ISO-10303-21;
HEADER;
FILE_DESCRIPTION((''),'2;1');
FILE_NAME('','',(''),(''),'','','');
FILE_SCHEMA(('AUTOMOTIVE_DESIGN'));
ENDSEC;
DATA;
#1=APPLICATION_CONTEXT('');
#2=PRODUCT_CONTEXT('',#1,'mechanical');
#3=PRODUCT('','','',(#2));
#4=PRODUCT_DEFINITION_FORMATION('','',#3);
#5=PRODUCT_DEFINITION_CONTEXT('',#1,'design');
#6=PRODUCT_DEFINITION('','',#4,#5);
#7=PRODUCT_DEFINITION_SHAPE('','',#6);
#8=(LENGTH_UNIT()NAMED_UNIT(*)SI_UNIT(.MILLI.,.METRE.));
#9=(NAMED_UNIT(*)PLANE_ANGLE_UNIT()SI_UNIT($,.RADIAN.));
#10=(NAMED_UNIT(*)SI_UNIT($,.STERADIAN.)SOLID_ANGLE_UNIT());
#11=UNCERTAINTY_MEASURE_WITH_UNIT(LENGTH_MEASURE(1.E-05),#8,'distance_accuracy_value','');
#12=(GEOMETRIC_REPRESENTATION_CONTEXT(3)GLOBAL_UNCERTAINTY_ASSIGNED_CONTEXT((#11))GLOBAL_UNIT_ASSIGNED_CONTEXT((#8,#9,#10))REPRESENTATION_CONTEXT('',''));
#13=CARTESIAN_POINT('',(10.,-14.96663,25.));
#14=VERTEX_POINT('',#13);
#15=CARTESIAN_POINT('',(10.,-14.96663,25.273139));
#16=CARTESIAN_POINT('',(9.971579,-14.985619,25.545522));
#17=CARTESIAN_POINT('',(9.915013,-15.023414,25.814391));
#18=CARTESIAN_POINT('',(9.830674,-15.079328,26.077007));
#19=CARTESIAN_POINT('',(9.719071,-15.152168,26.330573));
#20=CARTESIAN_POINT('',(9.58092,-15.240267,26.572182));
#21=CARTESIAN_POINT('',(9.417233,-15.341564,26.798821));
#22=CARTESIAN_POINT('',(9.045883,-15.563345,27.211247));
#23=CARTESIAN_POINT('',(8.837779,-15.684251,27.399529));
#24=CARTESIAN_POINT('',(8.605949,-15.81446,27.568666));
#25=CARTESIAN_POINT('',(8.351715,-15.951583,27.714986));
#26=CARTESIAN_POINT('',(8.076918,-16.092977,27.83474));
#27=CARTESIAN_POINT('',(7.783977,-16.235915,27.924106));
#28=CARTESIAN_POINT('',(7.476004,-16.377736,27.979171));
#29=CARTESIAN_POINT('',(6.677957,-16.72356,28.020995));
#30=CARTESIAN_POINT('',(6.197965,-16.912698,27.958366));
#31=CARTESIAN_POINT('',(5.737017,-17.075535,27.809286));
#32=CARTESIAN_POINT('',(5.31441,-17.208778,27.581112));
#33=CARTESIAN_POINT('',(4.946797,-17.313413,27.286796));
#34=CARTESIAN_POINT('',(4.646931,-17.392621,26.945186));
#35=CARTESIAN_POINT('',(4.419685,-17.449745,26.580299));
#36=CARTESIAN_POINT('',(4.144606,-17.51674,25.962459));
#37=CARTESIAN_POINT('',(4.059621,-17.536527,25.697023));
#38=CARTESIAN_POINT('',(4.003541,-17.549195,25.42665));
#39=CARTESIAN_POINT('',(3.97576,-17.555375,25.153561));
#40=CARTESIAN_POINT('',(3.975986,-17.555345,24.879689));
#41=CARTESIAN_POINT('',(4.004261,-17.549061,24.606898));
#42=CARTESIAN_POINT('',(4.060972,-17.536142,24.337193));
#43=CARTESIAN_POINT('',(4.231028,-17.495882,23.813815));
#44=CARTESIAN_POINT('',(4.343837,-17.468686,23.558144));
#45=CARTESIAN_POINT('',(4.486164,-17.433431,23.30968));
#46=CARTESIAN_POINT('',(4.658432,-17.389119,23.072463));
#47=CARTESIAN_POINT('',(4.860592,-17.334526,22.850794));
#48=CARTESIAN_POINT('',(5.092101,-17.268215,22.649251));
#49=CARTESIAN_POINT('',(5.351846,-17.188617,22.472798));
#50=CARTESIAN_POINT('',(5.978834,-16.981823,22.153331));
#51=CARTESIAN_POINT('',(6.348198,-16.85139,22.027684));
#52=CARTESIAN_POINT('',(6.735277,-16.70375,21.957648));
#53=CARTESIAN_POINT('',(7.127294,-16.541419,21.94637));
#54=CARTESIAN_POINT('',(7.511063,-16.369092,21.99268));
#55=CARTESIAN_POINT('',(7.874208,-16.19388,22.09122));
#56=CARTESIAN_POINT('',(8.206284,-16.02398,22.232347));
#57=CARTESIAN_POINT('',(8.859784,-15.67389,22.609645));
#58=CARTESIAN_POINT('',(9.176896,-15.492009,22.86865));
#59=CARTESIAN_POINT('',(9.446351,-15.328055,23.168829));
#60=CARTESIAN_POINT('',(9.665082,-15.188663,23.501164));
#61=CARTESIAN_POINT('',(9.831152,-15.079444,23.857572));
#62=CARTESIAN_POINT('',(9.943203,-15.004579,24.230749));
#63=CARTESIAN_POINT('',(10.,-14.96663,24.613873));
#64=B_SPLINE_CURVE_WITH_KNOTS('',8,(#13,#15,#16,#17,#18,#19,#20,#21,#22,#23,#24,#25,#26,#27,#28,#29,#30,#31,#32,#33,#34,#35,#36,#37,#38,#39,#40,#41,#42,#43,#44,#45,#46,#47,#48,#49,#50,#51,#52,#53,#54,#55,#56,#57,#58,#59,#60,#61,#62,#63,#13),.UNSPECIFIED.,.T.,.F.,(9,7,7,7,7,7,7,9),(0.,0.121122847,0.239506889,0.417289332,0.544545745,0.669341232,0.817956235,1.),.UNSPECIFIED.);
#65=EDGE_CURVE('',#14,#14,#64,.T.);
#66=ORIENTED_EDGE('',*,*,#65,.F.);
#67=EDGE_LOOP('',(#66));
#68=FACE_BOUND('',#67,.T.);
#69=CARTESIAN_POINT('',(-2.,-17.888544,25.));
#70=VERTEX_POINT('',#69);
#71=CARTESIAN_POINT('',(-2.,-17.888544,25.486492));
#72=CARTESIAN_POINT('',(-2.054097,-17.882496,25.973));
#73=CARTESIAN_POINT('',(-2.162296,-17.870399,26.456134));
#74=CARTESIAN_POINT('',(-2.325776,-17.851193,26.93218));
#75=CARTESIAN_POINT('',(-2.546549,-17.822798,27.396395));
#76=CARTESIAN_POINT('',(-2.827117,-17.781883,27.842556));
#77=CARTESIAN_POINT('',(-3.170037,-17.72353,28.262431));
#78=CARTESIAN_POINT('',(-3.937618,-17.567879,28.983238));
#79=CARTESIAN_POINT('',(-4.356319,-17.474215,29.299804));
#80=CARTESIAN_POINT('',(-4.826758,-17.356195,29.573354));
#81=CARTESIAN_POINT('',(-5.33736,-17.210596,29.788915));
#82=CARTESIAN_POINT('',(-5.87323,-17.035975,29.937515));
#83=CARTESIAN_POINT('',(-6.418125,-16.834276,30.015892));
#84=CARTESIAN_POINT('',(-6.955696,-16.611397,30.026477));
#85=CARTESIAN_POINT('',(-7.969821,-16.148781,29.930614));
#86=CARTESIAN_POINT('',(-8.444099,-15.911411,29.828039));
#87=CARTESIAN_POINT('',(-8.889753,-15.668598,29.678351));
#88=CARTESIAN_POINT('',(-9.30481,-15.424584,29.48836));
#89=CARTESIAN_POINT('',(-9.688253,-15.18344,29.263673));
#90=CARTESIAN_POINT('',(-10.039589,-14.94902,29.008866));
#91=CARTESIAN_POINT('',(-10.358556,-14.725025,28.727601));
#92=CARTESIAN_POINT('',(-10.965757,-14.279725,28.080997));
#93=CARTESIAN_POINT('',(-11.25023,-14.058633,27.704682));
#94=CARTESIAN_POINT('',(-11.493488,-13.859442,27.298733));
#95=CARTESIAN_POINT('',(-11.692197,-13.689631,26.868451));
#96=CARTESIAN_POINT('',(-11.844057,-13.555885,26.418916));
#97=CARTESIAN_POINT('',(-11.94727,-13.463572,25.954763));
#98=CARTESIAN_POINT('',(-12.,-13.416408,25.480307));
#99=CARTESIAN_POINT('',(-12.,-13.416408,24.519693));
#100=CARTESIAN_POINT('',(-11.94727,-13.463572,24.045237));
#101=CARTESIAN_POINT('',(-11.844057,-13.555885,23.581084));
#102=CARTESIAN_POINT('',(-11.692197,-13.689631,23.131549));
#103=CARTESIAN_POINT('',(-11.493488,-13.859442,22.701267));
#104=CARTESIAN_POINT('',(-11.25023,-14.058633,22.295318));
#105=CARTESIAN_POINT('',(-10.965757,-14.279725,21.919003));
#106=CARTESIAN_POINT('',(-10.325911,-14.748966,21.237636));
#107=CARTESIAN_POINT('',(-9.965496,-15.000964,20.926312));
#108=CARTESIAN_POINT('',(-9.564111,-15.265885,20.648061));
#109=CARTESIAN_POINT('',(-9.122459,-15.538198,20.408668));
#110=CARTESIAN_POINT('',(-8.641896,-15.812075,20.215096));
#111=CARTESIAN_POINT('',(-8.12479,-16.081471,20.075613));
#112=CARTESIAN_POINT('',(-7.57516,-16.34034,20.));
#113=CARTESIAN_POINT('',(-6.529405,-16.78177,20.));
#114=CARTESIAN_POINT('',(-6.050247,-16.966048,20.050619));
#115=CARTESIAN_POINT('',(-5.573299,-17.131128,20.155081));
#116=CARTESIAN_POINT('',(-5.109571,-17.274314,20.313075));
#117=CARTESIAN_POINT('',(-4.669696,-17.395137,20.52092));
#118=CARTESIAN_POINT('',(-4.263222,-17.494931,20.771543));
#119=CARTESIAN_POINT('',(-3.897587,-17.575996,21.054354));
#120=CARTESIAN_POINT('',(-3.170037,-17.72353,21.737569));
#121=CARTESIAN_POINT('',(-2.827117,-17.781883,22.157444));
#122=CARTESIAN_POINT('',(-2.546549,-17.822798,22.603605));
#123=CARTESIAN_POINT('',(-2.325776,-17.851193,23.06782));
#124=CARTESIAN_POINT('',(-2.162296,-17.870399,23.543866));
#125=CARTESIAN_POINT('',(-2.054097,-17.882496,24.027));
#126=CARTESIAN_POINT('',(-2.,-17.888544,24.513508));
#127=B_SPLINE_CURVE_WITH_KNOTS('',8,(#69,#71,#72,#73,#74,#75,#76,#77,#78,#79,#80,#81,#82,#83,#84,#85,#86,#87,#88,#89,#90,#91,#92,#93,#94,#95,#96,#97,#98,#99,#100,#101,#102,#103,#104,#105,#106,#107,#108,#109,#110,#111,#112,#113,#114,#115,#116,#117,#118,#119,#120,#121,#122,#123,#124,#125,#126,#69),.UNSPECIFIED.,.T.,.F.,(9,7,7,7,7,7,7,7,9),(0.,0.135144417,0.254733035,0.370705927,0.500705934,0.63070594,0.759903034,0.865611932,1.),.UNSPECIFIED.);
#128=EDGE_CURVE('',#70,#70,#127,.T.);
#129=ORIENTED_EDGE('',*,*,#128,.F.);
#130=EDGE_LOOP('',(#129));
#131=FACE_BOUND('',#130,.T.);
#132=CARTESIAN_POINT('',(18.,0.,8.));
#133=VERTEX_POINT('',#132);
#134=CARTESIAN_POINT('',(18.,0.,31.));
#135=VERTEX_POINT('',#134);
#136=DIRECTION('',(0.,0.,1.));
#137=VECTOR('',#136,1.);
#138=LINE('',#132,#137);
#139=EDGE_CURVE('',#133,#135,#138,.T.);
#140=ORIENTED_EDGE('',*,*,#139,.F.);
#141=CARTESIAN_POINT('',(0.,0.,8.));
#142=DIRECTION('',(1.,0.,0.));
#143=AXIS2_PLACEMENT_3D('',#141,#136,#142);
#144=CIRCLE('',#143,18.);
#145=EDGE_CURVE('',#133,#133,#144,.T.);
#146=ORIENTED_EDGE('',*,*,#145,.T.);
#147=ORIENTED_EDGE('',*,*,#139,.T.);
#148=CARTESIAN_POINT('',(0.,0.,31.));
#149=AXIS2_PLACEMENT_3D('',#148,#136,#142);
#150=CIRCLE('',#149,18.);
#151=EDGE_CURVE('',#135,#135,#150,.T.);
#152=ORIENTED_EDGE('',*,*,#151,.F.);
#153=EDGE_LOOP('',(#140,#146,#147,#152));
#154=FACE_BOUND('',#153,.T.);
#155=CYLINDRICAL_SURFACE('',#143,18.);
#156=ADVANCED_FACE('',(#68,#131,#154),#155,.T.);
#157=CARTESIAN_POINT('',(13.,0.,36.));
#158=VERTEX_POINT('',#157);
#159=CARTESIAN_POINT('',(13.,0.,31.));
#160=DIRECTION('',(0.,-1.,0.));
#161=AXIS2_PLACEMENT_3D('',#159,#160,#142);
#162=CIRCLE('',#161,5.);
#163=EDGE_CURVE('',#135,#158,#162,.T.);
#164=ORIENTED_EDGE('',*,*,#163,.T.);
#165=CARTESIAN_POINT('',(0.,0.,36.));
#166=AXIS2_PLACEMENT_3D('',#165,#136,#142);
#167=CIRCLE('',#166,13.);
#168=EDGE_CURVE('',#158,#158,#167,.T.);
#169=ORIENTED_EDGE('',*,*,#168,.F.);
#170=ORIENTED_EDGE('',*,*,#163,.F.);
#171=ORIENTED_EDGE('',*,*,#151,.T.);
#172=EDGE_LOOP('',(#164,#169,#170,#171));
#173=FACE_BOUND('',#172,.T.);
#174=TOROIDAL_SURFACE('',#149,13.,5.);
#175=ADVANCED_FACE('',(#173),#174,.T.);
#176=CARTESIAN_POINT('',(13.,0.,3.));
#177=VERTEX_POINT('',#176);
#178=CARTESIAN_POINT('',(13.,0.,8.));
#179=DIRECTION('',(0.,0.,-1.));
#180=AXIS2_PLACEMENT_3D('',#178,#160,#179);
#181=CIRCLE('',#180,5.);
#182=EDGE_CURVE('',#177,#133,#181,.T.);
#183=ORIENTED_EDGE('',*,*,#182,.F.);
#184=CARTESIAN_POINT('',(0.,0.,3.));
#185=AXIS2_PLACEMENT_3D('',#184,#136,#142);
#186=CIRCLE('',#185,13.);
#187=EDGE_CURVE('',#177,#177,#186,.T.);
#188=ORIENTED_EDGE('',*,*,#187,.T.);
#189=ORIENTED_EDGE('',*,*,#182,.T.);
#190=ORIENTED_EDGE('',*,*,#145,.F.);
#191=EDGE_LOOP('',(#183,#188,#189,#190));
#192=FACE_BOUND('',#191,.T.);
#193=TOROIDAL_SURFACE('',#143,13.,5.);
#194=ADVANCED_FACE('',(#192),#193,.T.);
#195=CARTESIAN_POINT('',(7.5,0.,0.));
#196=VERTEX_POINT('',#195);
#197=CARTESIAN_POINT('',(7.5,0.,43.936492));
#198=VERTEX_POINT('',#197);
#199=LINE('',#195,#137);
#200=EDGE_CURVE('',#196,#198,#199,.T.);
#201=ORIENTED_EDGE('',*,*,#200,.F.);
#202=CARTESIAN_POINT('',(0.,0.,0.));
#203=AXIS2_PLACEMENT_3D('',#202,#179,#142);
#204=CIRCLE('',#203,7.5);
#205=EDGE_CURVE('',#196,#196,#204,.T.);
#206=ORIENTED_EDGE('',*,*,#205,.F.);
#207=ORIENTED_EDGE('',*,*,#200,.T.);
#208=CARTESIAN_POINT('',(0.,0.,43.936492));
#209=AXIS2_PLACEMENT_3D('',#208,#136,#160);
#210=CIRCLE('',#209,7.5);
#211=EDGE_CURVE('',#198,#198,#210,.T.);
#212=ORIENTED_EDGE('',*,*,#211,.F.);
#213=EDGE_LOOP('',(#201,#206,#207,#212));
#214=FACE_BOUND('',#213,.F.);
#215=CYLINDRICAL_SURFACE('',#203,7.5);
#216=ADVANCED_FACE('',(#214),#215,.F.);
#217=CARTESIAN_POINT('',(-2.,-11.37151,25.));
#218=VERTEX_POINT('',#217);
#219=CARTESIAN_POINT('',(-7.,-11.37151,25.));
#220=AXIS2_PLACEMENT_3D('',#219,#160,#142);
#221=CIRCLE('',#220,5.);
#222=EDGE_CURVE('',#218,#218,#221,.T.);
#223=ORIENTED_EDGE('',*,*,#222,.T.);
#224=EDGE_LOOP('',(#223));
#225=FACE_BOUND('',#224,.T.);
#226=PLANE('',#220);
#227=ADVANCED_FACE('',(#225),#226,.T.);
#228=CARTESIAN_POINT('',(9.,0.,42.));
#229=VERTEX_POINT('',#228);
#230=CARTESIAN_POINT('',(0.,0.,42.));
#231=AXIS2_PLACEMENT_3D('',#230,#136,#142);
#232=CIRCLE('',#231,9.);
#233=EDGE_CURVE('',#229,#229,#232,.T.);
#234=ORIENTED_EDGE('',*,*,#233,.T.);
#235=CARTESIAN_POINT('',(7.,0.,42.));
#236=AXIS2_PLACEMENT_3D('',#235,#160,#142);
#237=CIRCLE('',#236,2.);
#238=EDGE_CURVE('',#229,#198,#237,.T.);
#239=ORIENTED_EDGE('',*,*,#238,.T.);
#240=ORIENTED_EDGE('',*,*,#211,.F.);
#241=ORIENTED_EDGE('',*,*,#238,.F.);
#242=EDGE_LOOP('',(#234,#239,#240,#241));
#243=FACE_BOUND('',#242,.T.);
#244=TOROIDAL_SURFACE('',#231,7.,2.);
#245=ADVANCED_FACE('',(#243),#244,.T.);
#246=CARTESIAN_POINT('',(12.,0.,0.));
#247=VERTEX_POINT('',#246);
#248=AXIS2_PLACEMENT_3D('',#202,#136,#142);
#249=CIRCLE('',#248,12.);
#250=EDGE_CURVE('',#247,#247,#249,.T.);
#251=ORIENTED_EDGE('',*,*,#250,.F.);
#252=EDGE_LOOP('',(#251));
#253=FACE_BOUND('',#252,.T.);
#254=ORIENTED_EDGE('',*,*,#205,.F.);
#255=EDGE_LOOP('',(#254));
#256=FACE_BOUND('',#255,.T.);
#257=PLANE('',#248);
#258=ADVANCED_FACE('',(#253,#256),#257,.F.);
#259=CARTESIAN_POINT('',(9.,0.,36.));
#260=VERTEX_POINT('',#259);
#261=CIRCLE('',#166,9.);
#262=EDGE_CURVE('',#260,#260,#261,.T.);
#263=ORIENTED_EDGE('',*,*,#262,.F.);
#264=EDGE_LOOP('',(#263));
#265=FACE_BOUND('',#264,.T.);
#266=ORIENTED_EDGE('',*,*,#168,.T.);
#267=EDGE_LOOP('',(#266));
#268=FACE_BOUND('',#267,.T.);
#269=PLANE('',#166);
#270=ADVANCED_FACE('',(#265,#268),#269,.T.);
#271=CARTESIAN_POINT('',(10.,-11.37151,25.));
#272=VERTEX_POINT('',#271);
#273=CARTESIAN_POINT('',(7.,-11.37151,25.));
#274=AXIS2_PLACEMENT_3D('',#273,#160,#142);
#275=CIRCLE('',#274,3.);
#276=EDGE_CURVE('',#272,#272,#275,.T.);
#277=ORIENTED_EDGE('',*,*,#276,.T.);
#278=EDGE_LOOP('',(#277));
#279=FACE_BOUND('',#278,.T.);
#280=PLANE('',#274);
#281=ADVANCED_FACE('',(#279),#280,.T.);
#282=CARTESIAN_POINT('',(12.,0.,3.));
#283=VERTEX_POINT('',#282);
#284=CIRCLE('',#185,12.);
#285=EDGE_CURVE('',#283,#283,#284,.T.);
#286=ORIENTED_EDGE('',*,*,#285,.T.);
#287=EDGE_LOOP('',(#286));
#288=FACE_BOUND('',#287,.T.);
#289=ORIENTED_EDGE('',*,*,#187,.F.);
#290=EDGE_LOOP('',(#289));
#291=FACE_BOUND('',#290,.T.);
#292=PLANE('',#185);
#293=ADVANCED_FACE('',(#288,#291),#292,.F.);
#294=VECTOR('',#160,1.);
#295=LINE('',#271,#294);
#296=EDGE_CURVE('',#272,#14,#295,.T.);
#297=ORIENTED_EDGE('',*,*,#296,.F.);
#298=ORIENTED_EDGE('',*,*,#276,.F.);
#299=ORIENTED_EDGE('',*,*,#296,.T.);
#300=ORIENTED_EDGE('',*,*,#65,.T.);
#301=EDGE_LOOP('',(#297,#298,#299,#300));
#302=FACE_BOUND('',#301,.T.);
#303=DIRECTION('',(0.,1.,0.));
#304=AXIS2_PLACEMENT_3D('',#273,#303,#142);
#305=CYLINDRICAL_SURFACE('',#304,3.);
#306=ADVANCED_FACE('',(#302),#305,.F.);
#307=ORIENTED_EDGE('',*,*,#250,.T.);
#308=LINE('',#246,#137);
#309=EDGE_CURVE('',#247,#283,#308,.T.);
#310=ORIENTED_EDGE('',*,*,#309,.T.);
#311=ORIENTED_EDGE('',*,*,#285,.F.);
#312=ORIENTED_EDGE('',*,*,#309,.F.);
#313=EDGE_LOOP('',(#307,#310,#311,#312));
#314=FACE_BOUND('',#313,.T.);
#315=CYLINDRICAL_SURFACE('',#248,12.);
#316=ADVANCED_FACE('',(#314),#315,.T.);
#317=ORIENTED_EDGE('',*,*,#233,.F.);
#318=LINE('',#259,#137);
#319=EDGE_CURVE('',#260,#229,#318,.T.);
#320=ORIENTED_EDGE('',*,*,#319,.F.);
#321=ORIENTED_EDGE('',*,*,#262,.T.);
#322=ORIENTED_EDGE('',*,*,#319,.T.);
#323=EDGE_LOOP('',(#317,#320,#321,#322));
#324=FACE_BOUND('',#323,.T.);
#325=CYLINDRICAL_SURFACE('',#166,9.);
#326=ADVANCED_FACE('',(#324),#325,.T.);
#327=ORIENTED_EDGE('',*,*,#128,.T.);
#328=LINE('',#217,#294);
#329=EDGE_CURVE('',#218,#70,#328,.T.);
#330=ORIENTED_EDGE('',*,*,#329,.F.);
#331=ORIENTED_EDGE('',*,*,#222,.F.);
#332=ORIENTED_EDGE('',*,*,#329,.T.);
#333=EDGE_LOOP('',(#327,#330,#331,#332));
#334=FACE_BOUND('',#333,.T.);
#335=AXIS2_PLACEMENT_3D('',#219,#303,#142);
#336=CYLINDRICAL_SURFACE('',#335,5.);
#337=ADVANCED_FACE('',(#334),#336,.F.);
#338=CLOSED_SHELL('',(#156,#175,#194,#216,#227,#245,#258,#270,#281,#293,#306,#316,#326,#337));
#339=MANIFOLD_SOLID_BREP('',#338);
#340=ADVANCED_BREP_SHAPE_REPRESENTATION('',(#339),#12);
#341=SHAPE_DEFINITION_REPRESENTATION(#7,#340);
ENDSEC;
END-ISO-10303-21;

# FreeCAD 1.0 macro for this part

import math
import FreeCAD as App
import Part
import Sketcher

V = App.Vector
Q = App.Units.Quantity

doc = App.newDocument("Part")
body = doc.addObject("PartDesign::Body", "Body")

# Sketch on XZ plane
sketch1 = body.newObject("Sketcher::SketchObject", "Sketch")
sketch1.AttachmentSupport = (doc.getObject("XZ_Plane"), [""])
sketch1.MapMode = "FlatFace"
sketch1.addGeometry([
    Part.LineSegment(V(7, 44, 0), V(0, 44, 0)),  # 0
    Part.LineSegment(V(0, 44, 0), V(0, 0, 0)),  # 1
    Part.LineSegment(V(0, 0, 0), V(12, 0, 0)),  # 2
    Part.LineSegment(V(12, 0, 0), V(12, 3, 0)),  # 3
    Part.LineSegment(V(12, 3, 0), V(13, 3, 0)),  # 4
    Part.ArcOfCircle(Part.Circle(V(13, 8, 0), V(0, 0, 1), 5), math.radians(-90), math.radians(0)),  # 5
    Part.LineSegment(V(18, 8, 0), V(18, 31, 0)),  # 6
    Part.ArcOfCircle(Part.Circle(V(13, 31, 0), V(0, 0, 1), 5), math.radians(0), math.radians(90)),  # 7
    Part.LineSegment(V(13, 36, 0), V(9, 36, 0)),  # 8
    Part.LineSegment(V(9, 36, 0), V(9, 42, 0)),  # 9
    Part.ArcOfCircle(Part.Circle(V(7, 42, 0), V(0, 0, 1), 2), math.radians(0), math.radians(90)),  # 10
], False)
sketch1.addConstraint([
    Sketcher.Constraint("Coincident", 0, 2, 1, 1),
    Sketcher.Constraint("Coincident", 1, 2, 2, 1),
    Sketcher.Constraint("Coincident", 2, 2, 3, 1),
    Sketcher.Constraint("Coincident", 3, 2, 4, 1),
    Sketcher.Constraint("Tangent", 4, 2, 5, 1),
    Sketcher.Constraint("Tangent", 5, 2, 6, 1),
    Sketcher.Constraint("Tangent", 6, 2, 7, 1),
    Sketcher.Constraint("Tangent", 7, 2, 8, 1),
    Sketcher.Constraint("Coincident", 8, 2, 9, 1),
    Sketcher.Constraint("Tangent", 9, 2, 10, 1),
    Sketcher.Constraint("Tangent", 10, 2, 0, 1),
    Sketcher.Constraint("Horizontal", 0),
    Sketcher.Constraint("Vertical", 1),
    Sketcher.Constraint("Horizontal", 2),
    Sketcher.Constraint("Vertical", 3),
    Sketcher.Constraint("Horizontal", 4),
    Sketcher.Constraint("Vertical", 6),
    Sketcher.Constraint("Horizontal", 8),
    Sketcher.Constraint("Vertical", 9),
    Sketcher.Constraint("Coincident", 1, 2, -1, 1),
    Sketcher.Constraint("Equal", 5, 7),
    Sketcher.Constraint("Radius", 5, Q("5 mm")),
    Sketcher.Constraint("Radius", 10, Q("2 mm")),
    Sketcher.Constraint("DistanceX", 0, 2, 0, 1, Q("7 mm")),
    Sketcher.Constraint("DistanceX", 2, 1, 2, 2, Q("12 mm")),
    Sketcher.Constraint("DistanceX", 4, 1, 4, 2, Q("1 mm")),
    Sketcher.Constraint("DistanceY", 1, 2, 1, 1, Q("44 mm")),
    Sketcher.Constraint("DistanceY", 3, 1, 3, 2, Q("3 mm")),
    Sketcher.Constraint("DistanceY", 6, 1, 6, 2, Q("23 mm")),
])
revolution = body.newObject("PartDesign::Revolution", "Revolution")
revolution.Profile = sketch1
revolution.ReferenceAxis = (sketch1, ["V_Axis"])
revolution.Angle = 360

# Sketch on XY plane
sketch2 = body.newObject("Sketcher::SketchObject", "Sketch001")
sketch2.AttachmentSupport = (doc.getObject("XY_Plane"), [""])
sketch2.MapMode = "FlatFace"
sketch2.addGeometry(Part.Circle(V(0, 0, 0), V(0, 0, 1), 8), False)
sketch2.addConstraint([
    Sketcher.Constraint("Coincident", 0, 3, -1, 1),
    Sketcher.Constraint("Diameter", 0, Q("15 mm")),
])
pocket1 = body.newObject("PartDesign::Pocket", "Pocket")
pocket1.Profile = sketch2
pocket1.Type = "ThroughAll"
pocket1.Reversed = True

# Sketch on XZ plane
sketch3 = body.newObject("Sketcher::SketchObject", "Sketch002")
sketch3.AttachmentSupport = (doc.getObject("XZ_Plane"), [""])
sketch3.MapMode = "FlatFace"
sketch3.AttachmentOffset = App.Placement(V(0, 0, 11.37151), App.Rotation())
sketch3.addGeometry([
    Part.Circle(V(7, 25, 0), V(0, 0, 1), 3),
    Part.Circle(V(-7, 25, 0), V(0, 0, 1), 5),
], False)
sketch3.addConstraint([
    Sketcher.Constraint("Symmetric", 0, 3, 1, 3, -2),
    Sketcher.Constraint("Diameter", 0, Q("6 mm")),
    Sketcher.Constraint("Diameter", 1, Q("10 mm")),
    Sketcher.Constraint("DistanceX", -1, 1, 0, 3, Q("7 mm")),
    Sketcher.Constraint("DistanceY", -1, 1, 0, 3, Q("25 mm")),
])
pocket2 = body.newObject("PartDesign::Pocket", "Pocket001")
pocket2.Profile = sketch3
pocket2.Length = 8.99461
pocket2.Reversed = True

doc.recompute()
